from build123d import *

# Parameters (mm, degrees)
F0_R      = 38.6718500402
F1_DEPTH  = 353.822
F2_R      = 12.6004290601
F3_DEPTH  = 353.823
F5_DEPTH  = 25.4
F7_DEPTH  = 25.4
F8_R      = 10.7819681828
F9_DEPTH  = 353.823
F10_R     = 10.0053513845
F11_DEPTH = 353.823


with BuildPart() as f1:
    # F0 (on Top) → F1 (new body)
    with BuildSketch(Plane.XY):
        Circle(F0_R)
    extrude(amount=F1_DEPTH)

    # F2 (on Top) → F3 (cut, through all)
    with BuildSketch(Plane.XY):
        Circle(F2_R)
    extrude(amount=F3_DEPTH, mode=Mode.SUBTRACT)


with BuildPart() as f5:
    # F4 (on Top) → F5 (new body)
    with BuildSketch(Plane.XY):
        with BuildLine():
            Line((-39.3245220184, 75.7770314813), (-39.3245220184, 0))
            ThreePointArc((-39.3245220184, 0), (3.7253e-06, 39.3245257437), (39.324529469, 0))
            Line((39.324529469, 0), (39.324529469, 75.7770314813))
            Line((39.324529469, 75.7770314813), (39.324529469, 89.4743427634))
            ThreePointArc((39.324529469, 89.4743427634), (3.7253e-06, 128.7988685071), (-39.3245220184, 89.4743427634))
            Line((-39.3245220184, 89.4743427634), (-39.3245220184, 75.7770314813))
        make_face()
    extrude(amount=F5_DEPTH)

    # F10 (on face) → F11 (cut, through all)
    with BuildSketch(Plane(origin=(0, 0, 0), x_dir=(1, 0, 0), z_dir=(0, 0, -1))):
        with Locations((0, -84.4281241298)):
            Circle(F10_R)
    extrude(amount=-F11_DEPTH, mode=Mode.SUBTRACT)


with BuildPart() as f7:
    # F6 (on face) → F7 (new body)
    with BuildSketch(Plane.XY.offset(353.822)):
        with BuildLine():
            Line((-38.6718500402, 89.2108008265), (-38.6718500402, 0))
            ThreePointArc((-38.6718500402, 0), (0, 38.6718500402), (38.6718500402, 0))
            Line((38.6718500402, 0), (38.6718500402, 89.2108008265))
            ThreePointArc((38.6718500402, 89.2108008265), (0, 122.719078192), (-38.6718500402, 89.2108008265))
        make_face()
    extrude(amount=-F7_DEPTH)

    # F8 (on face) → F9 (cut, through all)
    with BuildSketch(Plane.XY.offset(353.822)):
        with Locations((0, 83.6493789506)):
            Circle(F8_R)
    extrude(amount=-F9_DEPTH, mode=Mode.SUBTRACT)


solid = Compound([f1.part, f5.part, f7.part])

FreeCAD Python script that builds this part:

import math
import FreeCAD as App
import Part
import Sketcher
from FreeCAD import Vector
Q = App.Units.Quantity

doc = App.newDocument("Part")
body = doc.addObject("PartDesign::Body", "Body")

# Sketch on XY plane
sketch1 = body.newObject("Sketcher::SketchObject", "Sketch")
sketch1.AttachmentSupport = (doc.getObject("XY_Plane"), [""])
sketch1.MapMode = "FlatFace"
sketch1.addGeometry(Part.Circle(Vector(0, 0, 0), Vector(0, 0, 1), 39), False)
sketch1.addConstraint([
    Sketcher.Constraint("Coincident", 0, 3, -1, 1),
    Sketcher.Constraint("Diameter", 0, 77.3437),
])
pad1 = body.newObject("PartDesign::Pad", "Pad")
pad1.Profile = sketch1
pad1.Length = Q("13.93 in")

# Sketch on XY plane
sketch2 = body.newObject("Sketcher::SketchObject", "Sketch001")
sketch2.AttachmentSupport = (doc.getObject("XY_Plane"), [""])
sketch2.MapMode = "FlatFace"
sketch2.addGeometry(Part.Circle(Vector(0, 0, 0), Vector(0, 0, 1), 13), False)
sketch2.addConstraint([
    Sketcher.Constraint("Coincident", 0, 3, -1, 1),
    Sketcher.Constraint("Diameter", 0, 25.200858),
])
pocket1 = body.newObject("PartDesign::Pocket", "Pocket")
pocket1.Profile = sketch2
pocket1.Type = "ThroughAll"
pocket1.Reversed = True
body2 = doc.addObject("PartDesign::Body", "Body001")

# Sketch on XY plane
sketch3 = body2.newObject("Sketcher::SketchObject", "Sketch002")
sketch3.AttachmentSupport = (doc.getObject("XY_Plane001"), [""])
sketch3.MapMode = "FlatFace"
sketch3.addGeometry([
    Part.ArcOfCircle(Part.Circle(Vector(0, 0, 0), Vector(0, 0, 1), 39), math.radians(0), math.radians(180)),
    Part.LineSegment(Vector(39, 0, 0), Vector(39, 89, 0)),
    Part.ArcOfCircle(Part.Circle(Vector(0, 89, 0), Vector(0, 0, 1), 39), math.radians(0), math.radians(180)),
    Part.LineSegment(Vector(-39, 89, 0), Vector(-39, 0, 0)),
], False)
sketch3.addConstraint([
    Sketcher.Constraint("Tangent", 0, 1, 1, 1),
    Sketcher.Constraint("Tangent", 1, 2, 2, 1),
    Sketcher.Constraint("Tangent", 2, 2, 3, 1),
    Sketcher.Constraint("Tangent", 3, 2, 0, 2),
    Sketcher.Constraint("Vertical", 1),
    Sketcher.Constraint("Vertical", 3),
    Sketcher.Constraint("Coincident", 0, 3, -1, 1),
    Sketcher.Constraint("Radius", 0, 39.324526),
    Sketcher.Constraint("DistanceY", 1, 1, 1, 2, 89.474343),
])
pad2 = body2.newObject("PartDesign::Pad", "Pad001")
pad2.Profile = sketch3
pad2.Length = Q("1 in")

# Sketch on XY plane
sketch4 = body2.newObject("Sketcher::SketchObject", "Sketch003")
sketch4.AttachmentSupport = (doc.getObject("XY_Plane001"), [""])
sketch4.MapMode = "FlatFace"
sketch4.addGeometry(Part.Circle(Vector(0, 84, 0), Vector(0, 0, 1), 10), False)
sketch4.addConstraint([
    Sketcher.Constraint("PointOnObject", 0, 3, -2),
    Sketcher.Constraint("Diameter", 0, 20.010703),
    Sketcher.Constraint("DistanceY", -1, 1, 0, 3, 84.428124),
])
pocket2 = body2.newObject("PartDesign::Pocket", "Pocket001")
pocket2.Profile = sketch4
pocket2.Type = "ThroughAll"
pocket2.Reversed = True
body3 = doc.addObject("PartDesign::Body", "Body002")

# Sketch on XY plane
sketch5 = body3.newObject("Sketcher::SketchObject", "Sketch004")
sketch5.AttachmentSupport = (doc.getObject("XY_Plane002"), [""])
sketch5.MapMode = "FlatFace"
sketch5.AttachmentOffset = App.Placement(Vector(0, 0, 13.93 * 25.4), App.Rotation())
sketch5.addGeometry([
    Part.LineSegment(Vector(-39, 89, 0), Vector(-39, 0, 0)),
    Part.ArcOfCircle(Part.Circle(Vector(0, 0, 0), Vector(0, 0, 1), 39), math.radians(0), math.radians(180)),
    Part.LineSegment(Vector(39, 0, 0), Vector(39, 89, 0)),
    Part.ArcOfCircle(Part.Circle(Vector(0, 84, 0), Vector(0, 0, 1), 39), math.radians(8), math.radians(172)),
], False)
sketch5.addConstraint([
    Sketcher.Constraint("Tangent", 0, 2, 1, 2),
    Sketcher.Constraint("Tangent", 1, 1, 2, 1),
    Sketcher.Constraint("Coincident", 2, 2, 3, 1),
    Sketcher.Constraint("Coincident", 3, 2, 0, 1),
    Sketcher.Constraint("Vertical", 0),
    Sketcher.Constraint("Vertical", 2),
    Sketcher.Constraint("Coincident", 1, 3, -1, 1),
    Sketcher.Constraint("PointOnObject", 3, 3, -2),
    Sketcher.Constraint("Radius", 3, 39.069699),
    Sketcher.Constraint("Radius", 1, 38.67185),
    Sketcher.Constraint("DistanceY", 0, 2, 0, 1, 89.210801),
])
pad3 = body3.newObject("PartDesign::Pad", "Pad002")
pad3.Profile = sketch5
pad3.Length = Q("1 in")
pad3.Reversed = True

# Sketch on XY plane
sketch6 = body3.newObject("Sketcher::SketchObject", "Sketch005")
sketch6.AttachmentSupport = (doc.getObject("XY_Plane002"), [""])
sketch6.MapMode = "FlatFace"
sketch6.AttachmentOffset = App.Placement(Vector(0, 0, 13.93 * 25.4), App.Rotation())
sketch6.addGeometry(Part.Circle(Vector(0, 84, 0), Vector(0, 0, 1), 11), False)
sketch6.addConstraint([
    Sketcher.Constraint("PointOnObject", 0, 3, -2),
    Sketcher.Constraint("Diameter", 0, 21.563936),
    Sketcher.Constraint("DistanceY", -1, 1, 0, 3, 83.649379),
])
pocket3 = body3.newObject("PartDesign::Pocket", "Pocket002")
pocket3.Profile = sketch6
pocket3.Type = "ThroughAll"

doc.recompute()
